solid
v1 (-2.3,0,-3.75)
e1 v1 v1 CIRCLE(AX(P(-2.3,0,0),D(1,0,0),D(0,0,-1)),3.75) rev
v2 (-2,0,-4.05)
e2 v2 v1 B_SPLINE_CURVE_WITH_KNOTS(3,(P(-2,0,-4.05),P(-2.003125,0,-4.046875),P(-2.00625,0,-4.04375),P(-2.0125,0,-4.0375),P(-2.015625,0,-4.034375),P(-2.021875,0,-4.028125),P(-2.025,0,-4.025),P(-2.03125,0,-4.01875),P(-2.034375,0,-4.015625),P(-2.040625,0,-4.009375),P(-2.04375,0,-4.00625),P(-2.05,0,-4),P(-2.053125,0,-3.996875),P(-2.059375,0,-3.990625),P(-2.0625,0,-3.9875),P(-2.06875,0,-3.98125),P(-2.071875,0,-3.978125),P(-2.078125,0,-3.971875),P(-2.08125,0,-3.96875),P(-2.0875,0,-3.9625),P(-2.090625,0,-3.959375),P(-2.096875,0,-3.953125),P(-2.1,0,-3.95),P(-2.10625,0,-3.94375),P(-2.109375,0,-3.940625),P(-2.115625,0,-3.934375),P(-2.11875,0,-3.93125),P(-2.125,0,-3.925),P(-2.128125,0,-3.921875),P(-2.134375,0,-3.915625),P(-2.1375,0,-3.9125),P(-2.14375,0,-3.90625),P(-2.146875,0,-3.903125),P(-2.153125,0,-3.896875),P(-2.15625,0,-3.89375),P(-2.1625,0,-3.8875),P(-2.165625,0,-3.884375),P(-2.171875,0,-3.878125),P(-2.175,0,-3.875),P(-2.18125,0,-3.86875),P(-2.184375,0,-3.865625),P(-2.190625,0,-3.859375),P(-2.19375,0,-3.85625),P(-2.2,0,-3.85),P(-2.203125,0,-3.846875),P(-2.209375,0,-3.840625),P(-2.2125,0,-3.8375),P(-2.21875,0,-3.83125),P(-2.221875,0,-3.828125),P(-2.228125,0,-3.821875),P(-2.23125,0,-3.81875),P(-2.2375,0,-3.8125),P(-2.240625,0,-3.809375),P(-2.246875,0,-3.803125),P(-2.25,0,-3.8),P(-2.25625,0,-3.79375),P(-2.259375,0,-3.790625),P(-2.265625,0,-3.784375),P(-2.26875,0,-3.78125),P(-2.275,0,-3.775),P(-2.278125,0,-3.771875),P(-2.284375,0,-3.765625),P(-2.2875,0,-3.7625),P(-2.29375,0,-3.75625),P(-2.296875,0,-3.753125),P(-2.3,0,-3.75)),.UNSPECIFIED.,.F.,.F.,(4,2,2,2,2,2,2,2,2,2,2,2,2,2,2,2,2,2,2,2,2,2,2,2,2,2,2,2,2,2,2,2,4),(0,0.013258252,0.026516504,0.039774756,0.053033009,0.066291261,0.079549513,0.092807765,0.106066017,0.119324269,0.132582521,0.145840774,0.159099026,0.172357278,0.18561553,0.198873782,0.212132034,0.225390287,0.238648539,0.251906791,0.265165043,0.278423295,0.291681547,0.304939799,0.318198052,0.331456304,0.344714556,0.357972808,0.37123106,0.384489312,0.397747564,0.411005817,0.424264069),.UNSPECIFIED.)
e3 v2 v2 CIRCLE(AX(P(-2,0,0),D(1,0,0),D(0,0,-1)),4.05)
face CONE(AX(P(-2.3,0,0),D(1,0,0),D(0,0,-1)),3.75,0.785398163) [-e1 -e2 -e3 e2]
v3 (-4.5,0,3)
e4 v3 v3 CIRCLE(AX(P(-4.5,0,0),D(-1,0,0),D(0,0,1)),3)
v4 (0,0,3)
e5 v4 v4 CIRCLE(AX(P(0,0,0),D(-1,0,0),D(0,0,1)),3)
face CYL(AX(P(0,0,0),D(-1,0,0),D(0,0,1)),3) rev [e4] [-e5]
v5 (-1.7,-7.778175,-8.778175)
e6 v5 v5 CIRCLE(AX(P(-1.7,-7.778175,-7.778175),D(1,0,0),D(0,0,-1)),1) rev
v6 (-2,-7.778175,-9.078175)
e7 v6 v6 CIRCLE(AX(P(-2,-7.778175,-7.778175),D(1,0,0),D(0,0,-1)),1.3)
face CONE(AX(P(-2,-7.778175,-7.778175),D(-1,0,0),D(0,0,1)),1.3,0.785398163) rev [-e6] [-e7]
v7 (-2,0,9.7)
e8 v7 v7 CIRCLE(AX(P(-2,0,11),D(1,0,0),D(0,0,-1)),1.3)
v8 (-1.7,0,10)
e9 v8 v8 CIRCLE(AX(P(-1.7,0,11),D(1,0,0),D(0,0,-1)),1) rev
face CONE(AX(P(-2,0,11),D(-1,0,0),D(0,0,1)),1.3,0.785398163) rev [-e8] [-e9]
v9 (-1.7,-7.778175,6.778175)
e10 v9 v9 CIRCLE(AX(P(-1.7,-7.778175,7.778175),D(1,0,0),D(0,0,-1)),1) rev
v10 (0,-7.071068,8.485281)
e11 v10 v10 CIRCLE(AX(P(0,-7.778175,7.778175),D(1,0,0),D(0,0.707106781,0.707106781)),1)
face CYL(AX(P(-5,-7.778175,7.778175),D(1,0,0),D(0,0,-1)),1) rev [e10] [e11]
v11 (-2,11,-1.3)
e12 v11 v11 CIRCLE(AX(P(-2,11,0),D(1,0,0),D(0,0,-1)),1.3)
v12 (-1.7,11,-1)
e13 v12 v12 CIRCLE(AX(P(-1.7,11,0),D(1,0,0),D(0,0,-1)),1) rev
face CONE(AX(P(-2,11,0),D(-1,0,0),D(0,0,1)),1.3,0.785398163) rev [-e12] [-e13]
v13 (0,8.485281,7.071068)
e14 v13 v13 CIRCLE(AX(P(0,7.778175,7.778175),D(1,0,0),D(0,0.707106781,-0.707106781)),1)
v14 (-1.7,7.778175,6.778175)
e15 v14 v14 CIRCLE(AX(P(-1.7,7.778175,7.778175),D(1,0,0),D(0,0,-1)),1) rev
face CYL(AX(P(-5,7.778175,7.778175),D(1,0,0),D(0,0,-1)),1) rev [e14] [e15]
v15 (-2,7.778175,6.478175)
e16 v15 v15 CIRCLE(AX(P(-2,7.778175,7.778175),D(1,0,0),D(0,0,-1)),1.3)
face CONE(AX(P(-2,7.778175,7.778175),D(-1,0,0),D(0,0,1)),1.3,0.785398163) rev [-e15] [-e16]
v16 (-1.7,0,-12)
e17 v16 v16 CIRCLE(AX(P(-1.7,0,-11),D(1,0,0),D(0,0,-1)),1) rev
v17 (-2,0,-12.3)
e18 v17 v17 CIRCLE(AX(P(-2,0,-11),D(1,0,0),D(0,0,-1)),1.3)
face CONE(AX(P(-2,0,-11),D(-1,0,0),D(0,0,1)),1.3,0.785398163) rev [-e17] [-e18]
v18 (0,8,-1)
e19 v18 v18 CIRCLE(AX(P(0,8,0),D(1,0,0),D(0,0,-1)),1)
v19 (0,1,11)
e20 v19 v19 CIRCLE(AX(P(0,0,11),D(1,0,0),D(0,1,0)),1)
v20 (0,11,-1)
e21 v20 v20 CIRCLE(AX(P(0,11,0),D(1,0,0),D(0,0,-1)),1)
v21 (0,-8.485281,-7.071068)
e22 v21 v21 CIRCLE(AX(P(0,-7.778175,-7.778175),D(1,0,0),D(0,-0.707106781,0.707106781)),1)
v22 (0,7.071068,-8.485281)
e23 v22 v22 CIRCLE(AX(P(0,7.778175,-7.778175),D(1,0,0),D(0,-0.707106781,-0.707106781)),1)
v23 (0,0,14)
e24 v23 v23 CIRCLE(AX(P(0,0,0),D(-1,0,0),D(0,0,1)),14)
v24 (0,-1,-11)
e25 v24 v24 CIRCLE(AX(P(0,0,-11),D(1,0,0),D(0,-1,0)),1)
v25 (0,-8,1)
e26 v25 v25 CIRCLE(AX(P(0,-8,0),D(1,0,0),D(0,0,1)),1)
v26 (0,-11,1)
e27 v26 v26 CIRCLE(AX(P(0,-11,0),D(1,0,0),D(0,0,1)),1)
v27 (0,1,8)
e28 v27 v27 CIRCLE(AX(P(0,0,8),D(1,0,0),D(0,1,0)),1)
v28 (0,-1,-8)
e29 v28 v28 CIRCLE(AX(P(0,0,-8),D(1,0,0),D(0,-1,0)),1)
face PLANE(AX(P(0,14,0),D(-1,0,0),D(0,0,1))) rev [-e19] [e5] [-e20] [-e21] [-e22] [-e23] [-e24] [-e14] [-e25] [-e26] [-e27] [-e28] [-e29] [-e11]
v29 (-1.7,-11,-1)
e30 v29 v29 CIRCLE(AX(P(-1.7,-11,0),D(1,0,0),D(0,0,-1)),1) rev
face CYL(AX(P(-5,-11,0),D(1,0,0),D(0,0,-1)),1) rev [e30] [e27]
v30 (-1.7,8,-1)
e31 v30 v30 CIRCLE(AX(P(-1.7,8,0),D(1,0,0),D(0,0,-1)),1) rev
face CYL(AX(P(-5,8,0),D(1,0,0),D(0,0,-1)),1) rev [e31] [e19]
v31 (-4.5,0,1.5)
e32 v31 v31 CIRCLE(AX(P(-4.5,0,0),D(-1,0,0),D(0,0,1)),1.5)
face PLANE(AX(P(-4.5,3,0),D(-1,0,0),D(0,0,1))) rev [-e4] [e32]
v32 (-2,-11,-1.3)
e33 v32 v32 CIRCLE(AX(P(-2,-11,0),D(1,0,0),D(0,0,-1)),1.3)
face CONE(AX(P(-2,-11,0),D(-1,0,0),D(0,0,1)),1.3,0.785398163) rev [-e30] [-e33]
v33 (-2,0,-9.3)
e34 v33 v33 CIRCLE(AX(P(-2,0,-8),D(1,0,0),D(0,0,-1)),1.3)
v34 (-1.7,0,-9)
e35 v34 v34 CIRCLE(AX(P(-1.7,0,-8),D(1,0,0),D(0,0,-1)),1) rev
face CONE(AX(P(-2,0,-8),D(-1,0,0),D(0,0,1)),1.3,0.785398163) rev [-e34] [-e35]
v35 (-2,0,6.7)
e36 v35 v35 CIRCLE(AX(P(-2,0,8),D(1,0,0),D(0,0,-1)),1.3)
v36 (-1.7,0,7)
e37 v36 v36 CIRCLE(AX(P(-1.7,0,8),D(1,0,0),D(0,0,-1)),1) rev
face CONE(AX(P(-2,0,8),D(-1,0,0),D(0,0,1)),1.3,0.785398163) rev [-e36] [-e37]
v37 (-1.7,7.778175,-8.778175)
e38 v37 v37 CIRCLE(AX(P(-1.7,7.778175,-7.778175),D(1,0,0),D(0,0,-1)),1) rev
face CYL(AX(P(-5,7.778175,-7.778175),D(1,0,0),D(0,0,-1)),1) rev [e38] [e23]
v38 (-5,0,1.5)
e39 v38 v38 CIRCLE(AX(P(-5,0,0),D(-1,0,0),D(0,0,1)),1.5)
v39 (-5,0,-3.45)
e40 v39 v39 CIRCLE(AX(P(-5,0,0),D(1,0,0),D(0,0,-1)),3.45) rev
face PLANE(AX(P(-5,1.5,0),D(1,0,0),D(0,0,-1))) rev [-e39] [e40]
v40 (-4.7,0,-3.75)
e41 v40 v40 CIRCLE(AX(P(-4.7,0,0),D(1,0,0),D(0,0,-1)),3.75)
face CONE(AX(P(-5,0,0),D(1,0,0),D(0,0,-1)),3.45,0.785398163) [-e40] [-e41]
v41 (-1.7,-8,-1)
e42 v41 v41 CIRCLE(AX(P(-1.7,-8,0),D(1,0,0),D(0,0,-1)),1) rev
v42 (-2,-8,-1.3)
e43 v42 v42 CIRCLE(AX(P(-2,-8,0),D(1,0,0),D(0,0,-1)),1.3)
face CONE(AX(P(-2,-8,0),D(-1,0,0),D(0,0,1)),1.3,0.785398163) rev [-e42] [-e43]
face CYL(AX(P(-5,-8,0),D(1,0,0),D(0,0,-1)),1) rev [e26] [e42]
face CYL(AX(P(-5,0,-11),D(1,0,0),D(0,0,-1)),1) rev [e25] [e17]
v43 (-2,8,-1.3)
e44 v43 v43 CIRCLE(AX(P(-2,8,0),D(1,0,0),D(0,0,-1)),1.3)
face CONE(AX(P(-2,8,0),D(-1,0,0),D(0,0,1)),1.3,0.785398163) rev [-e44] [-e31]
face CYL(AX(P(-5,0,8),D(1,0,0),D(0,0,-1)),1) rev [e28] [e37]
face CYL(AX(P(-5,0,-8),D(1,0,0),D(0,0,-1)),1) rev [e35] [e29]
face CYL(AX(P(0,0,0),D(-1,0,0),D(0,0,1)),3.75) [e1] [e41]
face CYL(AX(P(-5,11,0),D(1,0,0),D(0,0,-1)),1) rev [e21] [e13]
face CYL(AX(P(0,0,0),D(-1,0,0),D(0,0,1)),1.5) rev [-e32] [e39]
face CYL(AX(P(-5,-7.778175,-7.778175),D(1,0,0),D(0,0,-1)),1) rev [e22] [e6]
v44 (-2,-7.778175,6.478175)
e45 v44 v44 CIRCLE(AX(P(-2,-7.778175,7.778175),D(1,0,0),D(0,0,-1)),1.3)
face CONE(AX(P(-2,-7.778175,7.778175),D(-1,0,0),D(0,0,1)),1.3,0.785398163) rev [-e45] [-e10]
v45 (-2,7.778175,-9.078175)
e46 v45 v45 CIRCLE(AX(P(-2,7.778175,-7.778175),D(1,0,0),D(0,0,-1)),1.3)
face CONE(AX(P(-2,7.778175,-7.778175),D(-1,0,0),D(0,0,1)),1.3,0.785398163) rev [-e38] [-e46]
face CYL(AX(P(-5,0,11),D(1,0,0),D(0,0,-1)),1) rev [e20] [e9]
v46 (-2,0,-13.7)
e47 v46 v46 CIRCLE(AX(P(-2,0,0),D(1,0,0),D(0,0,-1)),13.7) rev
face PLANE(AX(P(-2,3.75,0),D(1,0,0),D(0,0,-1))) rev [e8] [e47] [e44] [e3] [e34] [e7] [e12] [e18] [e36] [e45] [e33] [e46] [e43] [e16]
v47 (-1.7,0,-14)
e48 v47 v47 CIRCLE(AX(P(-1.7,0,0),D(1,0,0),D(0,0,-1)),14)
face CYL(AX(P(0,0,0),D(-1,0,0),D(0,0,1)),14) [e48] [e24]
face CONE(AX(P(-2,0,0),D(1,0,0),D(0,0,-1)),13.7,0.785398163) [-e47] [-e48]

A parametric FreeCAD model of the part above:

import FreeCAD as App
import Part
import Sketcher
Q = App.Units.Quantity


def edges_at(feature, points):
    """Names of the edges that pass closest to the given points."""
    edges = feature.Shape.Edges
    near = lambda p: min(range(len(edges)), key=lambda i: edges[i].distToShape(Part.Vertex(*p))[0])
    return sorted({f"Edge{near(p) + 1}" for p in points})


def add_polygon(sketch, points):
    """Adds a closed chain of lines whose ends are joined by coincident constraints."""
    first, n = sketch.GeometryCount, len(points)
    for a, b in zip(points, points[1:] + points[:1]):
        sketch.addGeometry(Part.LineSegment(App.Vector(*a, 0), App.Vector(*b, 0)), False)
    for i in range(n):
        sketch.addConstraint(Sketcher.Constraint("Coincident", first + i, 2, first + (i + 1) % n, 1))

doc = App.newDocument("Part")
body = doc.addObject("PartDesign::Body", "Body")

# Sketch on XY plane
sketch1 = body.newObject("Sketcher::SketchObject", "Sketch")
sketch1.AttachmentSupport = (doc.getObject("XY_Plane"), [""])
sketch1.MapMode = "FlatFace"
add_polygon(sketch1, [(-2, 3.8), (-5, 3.8), (-5, 1.5), (-4.5, 1.5), (-4.5, 3), (0, 3), (0, 14), (-2, 14)])  # lines 0-7
sketch1.addConstraint([
    Sketcher.Constraint("Horizontal", 0),
    Sketcher.Constraint("Vertical", 1),
    Sketcher.Constraint("Horizontal", 2),
    Sketcher.Constraint("Vertical", 3),
    Sketcher.Constraint("Horizontal", 4),
    Sketcher.Constraint("Vertical", 5),
    Sketcher.Constraint("Horizontal", 6),
    Sketcher.Constraint("Vertical", 7),
    Sketcher.Constraint("PointOnObject", 4, 2, -2),
    Sketcher.Constraint("DistanceX", 0, 2, 0, 1, Q("3 mm")),
    Sketcher.Constraint("DistanceX", 6, 2, 6, 1, Q("2 mm")),
    Sketcher.Constraint("DistanceY", 5, 1, 5, 2, Q("11 mm")),
    Sketcher.Constraint("DistanceX", 2, 1, 2, 2, Q("0.5 mm")),
    Sketcher.Constraint("DistanceY", 3, 1, 3, 2, Q("1.5 mm")),
    Sketcher.Constraint("DistanceY", -1, 1, 3, 2, Q("3 mm")),
    Sketcher.Constraint("DistanceY", 1, 2, 1, 1, Q("2.25 mm")),
])
revolution = body.newObject("PartDesign::Revolution", "Revolution")
revolution.Profile = sketch1
revolution.ReferenceAxis = (sketch1, ["H_Axis"])
revolution.Angle = 360

# Sketch on YZ plane
sketch2 = body.newObject("Sketcher::SketchObject", "Sketch001")
sketch2.AttachmentSupport = (doc.getObject("YZ_Plane"), [""])
sketch2.MapMode = "FlatFace"
sketch2.addGeometry(Part.Circle(App.Vector(11, 0, 0), App.Vector(0, 0, 1), 1), False)
sketch2.addConstraint([
    Sketcher.Constraint("PointOnObject", 0, 3, -1),
    Sketcher.Constraint("Diameter", 0, Q("2 mm")),
    Sketcher.Constraint("DistanceX", -1, 1, 0, 3, Q("11 mm")),
])
pocket1 = body.newObject("PartDesign::Pocket", "Pocket")
pocket1.Profile = sketch2
pocket1.Type = "ThroughAll"
doc.recompute()

polarpattern = body.newObject("PartDesign::PolarPattern", "PolarPattern")
polarpattern.Originals = [pocket1]
polarpattern.Axis = (doc.getObject("X_Axis"), [""])
polarpattern.Angle = 360
polarpattern.Occurrences = 8
body.Tip = polarpattern

# Sketch on YZ plane
sketch3 = body.newObject("Sketcher::SketchObject", "Sketch002")
sketch3.AttachmentSupport = (doc.getObject("YZ_Plane"), [""])
sketch3.MapMode = "FlatFace"
sketch3.addGeometry(Part.Circle(App.Vector(8, 0, 0), App.Vector(0, 0, 1), 1), False)
sketch3.addConstraint([
    Sketcher.Constraint("PointOnObject", 0, 3, -1),
    Sketcher.Constraint("Diameter", 0, Q("2 mm")),
    Sketcher.Constraint("DistanceX", -1, 1, 0, 3, Q("8 mm")),
])
pocket2 = body.newObject("PartDesign::Pocket", "Pocket001")
pocket2.Profile = sketch3
pocket2.Type = "ThroughAll"
doc.recompute()

polarpattern2 = body.newObject("PartDesign::PolarPattern", "PolarPattern001")
polarpattern2.Originals = [pocket2]
polarpattern2.Axis = (doc.getObject("X_Axis"), [""])
polarpattern2.Angle = 360
polarpattern2.Occurrences = 4
body.Tip = polarpattern2
doc.recompute()

chamfer = body.newObject("PartDesign::Chamfer", "Chamfer")
chamfer.Base = (polarpattern2, edges_at(polarpattern2, [
    (-2, 11, 1),
    (-2, 8.485, -7.071),
    (-2, 1, -11),
    (-2, -7.071, -8.485),
    (-2, -11, -1),
    (-2, -8.485, 7.071),
    (-2, -1, 11),
    (-2, 7.071, 8.485),
    (-2, 8, 1),
    (-2, 1, -8),
    (-2, -8, -1),
    (-2, -1, 8),
    (-2, 0, -14),
    (-2, 0, -3.75),
    (-5, 0, -3.75),
]))
chamfer.Size = 0.3

doc.recompute()
